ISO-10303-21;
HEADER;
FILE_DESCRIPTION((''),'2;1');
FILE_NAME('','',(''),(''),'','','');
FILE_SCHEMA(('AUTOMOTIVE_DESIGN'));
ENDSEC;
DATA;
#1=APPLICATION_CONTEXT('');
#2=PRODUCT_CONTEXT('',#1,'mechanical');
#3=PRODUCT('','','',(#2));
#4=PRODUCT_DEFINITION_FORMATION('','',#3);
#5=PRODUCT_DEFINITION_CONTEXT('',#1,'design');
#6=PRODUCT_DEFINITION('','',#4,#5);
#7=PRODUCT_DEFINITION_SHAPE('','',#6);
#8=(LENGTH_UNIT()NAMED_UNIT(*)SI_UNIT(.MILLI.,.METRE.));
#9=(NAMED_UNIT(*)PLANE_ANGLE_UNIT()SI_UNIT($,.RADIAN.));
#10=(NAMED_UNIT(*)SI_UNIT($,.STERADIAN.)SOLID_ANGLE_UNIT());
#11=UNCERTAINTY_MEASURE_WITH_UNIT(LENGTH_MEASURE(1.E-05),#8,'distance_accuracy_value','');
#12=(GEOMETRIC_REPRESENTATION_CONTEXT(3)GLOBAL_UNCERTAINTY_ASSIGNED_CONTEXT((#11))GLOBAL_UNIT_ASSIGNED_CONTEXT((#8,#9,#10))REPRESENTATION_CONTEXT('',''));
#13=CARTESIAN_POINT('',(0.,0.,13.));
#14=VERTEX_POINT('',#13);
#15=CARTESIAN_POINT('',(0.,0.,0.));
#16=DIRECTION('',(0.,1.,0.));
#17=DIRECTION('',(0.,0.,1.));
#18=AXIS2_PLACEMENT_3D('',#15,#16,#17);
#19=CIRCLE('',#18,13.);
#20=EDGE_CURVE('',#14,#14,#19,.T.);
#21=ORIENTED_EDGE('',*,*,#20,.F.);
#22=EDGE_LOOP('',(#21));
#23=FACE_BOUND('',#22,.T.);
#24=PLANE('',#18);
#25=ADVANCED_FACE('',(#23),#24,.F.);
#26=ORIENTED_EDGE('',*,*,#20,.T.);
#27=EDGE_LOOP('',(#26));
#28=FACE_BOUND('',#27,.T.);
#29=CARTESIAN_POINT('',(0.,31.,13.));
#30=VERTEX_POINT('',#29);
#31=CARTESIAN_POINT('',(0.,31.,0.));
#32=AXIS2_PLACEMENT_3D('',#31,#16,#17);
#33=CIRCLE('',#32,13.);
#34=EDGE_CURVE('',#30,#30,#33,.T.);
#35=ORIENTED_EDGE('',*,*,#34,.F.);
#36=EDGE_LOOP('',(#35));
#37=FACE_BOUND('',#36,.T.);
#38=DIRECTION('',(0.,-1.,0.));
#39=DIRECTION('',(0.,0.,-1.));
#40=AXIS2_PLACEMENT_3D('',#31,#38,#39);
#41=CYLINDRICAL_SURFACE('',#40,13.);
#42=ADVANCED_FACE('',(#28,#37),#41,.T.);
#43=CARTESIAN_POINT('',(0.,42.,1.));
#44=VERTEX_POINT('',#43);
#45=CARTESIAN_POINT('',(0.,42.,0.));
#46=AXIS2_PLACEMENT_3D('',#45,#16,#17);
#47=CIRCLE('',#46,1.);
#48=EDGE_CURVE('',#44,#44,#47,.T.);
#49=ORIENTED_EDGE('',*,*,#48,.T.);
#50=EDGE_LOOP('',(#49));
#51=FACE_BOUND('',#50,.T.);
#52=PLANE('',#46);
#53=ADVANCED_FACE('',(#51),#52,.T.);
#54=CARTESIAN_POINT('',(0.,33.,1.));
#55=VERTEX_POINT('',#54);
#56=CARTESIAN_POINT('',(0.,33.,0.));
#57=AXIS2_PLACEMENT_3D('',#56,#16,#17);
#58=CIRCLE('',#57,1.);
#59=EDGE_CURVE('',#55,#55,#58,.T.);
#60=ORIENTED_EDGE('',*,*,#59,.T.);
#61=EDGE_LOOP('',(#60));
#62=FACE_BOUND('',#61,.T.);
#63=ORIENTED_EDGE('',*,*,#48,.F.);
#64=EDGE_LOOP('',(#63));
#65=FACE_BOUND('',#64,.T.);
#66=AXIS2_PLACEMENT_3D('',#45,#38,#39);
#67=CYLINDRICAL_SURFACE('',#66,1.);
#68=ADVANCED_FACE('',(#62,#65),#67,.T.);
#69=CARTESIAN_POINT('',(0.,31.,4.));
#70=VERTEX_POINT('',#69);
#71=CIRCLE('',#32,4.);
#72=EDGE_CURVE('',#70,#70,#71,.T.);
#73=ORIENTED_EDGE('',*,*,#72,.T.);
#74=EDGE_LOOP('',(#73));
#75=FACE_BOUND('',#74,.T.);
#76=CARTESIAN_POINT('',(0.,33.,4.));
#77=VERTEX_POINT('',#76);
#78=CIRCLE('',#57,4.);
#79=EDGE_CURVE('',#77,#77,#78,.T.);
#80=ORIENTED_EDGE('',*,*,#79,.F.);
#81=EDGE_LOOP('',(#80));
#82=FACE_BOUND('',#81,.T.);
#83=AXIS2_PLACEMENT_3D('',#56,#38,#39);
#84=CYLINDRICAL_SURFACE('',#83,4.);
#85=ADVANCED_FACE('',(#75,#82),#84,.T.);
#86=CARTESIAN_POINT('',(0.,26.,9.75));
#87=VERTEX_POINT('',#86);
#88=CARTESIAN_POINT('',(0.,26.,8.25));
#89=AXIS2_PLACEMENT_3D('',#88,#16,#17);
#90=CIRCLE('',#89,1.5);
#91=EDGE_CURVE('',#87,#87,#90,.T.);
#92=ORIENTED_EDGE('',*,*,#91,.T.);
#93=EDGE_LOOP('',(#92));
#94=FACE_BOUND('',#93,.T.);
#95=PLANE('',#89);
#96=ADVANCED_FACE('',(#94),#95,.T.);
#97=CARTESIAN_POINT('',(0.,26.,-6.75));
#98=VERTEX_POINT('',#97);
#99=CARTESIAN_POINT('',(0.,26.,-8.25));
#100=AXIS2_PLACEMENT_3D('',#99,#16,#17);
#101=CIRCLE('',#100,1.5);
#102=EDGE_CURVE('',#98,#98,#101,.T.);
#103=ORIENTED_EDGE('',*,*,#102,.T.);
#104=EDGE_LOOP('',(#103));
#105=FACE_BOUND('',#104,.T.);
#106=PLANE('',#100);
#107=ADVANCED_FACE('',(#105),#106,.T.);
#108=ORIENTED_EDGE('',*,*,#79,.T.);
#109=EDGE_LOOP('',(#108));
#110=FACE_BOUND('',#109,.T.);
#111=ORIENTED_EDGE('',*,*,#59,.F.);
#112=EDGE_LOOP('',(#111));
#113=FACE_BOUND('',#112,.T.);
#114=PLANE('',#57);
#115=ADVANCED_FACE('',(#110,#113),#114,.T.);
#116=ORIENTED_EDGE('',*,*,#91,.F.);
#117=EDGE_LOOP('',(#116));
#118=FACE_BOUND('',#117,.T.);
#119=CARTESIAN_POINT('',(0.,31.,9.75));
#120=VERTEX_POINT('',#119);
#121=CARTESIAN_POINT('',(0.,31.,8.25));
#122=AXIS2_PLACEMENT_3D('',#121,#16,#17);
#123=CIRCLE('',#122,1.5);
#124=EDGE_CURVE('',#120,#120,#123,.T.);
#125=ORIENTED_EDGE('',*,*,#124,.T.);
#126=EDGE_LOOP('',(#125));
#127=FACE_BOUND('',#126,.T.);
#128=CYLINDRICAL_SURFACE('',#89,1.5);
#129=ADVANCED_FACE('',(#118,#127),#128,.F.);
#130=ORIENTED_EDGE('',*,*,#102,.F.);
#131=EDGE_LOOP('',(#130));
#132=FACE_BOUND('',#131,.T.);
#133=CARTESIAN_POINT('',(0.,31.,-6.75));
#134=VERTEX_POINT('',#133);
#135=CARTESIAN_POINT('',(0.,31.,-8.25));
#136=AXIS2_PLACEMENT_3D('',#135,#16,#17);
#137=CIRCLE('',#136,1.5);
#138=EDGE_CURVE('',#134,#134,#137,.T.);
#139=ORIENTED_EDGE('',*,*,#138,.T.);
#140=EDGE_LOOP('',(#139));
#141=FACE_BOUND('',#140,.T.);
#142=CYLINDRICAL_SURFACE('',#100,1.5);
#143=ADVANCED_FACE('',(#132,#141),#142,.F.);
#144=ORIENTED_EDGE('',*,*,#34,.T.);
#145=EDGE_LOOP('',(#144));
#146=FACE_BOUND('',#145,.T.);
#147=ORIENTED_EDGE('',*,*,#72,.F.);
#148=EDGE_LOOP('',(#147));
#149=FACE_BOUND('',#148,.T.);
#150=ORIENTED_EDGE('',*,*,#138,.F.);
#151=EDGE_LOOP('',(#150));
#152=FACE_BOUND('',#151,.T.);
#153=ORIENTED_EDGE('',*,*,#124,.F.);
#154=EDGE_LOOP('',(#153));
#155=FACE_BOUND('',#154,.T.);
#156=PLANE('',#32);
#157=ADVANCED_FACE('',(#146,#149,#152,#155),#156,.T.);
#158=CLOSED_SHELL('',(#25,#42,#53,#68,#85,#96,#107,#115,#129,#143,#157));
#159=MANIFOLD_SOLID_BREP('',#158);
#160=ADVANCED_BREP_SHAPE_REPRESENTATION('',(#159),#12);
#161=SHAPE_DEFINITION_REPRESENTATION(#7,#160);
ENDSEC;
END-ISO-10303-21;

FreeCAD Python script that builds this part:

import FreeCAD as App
import Part
import Sketcher
from FreeCAD import Vector
Q = App.Units.Quantity

doc = App.newDocument("Part")
body = doc.addObject("PartDesign::Body", "Body")

sketch1 = doc.addObject("Sketcher::SketchObject", "Sketch")
body.addObject(sketch1)
sketch1.AttachmentSupport = (doc.XZ_Plane, [""])
sketch1.MapMode = "FlatFace"
sketch1.addGeometry(Part.Circle(Vector(0, 0, 0), Vector(0, 0, 1), 13), False)
sketch1.addConstraint(Sketcher.Constraint("Coincident", 0, 3, -1, 1))
sketch1.addConstraint(Sketcher.Constraint("Diameter", 0, Q("26 mm")))
pad1 = doc.addObject("PartDesign::Pad", "Pad")
body.addObject(pad1)
pad1.Profile = sketch1
pad1.Length = 31
pad1.Reversed = True

sketch2 = doc.addObject("Sketcher::SketchObject", "Sketch001")
body.addObject(sketch2)
sketch2.AttachmentSupport = (doc.XZ_Plane, [""])
sketch2.MapMode = "FlatFace"
sketch2.AttachmentOffset = App.Placement(Vector(0, 0, -31), App.Rotation())
sketch2.addGeometry(Part.Circle(Vector(0, 0, 0), Vector(0, 0, 1), 4), False)
sketch2.addConstraint(Sketcher.Constraint("Coincident", 0, 3, -1, 1))
sketch2.addConstraint(Sketcher.Constraint("Diameter", 0, Q("8 mm")))
pad2 = doc.addObject("PartDesign::Pad", "Pad001")
body.addObject(pad2)
pad2.Profile = sketch2
pad2.Length = 2
pad2.Reversed = True

sketch3 = doc.addObject("Sketcher::SketchObject", "Sketch002")
body.addObject(sketch3)
sketch3.AttachmentSupport = (doc.XZ_Plane, [""])
sketch3.MapMode = "FlatFace"
sketch3.AttachmentOffset = App.Placement(Vector(0, 0, -33), App.Rotation())
sketch3.addGeometry(Part.Circle(Vector(0, 0, 0), Vector(0, 0, 1), 1), False)
sketch3.addConstraint(Sketcher.Constraint("Coincident", 0, 3, -1, 1))
sketch3.addConstraint(Sketcher.Constraint("Diameter", 0, Q("2 mm")))
pad3 = doc.addObject("PartDesign::Pad", "Pad002")
body.addObject(pad3)
pad3.Profile = sketch3
pad3.Length = 9
pad3.Reversed = True

sketch4 = doc.addObject("Sketcher::SketchObject", "Sketch003")
body.addObject(sketch4)
sketch4.AttachmentSupport = (doc.XZ_Plane, [""])
sketch4.MapMode = "FlatFace"
sketch4.AttachmentOffset = App.Placement(Vector(0, 0, -31), App.Rotation())
sketch4.addGeometry(Part.Circle(Vector(0, 8.2, 0), Vector(0, 0, 1), 1.5), False)
sketch4.addGeometry(Part.Circle(Vector(0, -8.2, 0), Vector(0, 0, 1), 1.5), False)
sketch4.addConstraint(Sketcher.Constraint("Equal", 0, 1))
sketch4.addConstraint(Sketcher.Constraint("Symmetric", 0, 3, 1, 3, -1, 1))
sketch4.addConstraint(Sketcher.Constraint("PointOnObject", 0, 3, -2))
sketch4.addConstraint(Sketcher.Constraint("Diameter", 0, Q("3 mm")))
sketch4.addConstraint(Sketcher.Constraint("DistanceY", 1, 3, 0, 3, Q("16.5 mm")))
pocket1 = doc.addObject("PartDesign::Pocket", "Pocket")
body.addObject(pocket1)
pocket1.Profile = sketch4
pocket1.Length = 5
pocket1.Reversed = True

doc.recompute()
